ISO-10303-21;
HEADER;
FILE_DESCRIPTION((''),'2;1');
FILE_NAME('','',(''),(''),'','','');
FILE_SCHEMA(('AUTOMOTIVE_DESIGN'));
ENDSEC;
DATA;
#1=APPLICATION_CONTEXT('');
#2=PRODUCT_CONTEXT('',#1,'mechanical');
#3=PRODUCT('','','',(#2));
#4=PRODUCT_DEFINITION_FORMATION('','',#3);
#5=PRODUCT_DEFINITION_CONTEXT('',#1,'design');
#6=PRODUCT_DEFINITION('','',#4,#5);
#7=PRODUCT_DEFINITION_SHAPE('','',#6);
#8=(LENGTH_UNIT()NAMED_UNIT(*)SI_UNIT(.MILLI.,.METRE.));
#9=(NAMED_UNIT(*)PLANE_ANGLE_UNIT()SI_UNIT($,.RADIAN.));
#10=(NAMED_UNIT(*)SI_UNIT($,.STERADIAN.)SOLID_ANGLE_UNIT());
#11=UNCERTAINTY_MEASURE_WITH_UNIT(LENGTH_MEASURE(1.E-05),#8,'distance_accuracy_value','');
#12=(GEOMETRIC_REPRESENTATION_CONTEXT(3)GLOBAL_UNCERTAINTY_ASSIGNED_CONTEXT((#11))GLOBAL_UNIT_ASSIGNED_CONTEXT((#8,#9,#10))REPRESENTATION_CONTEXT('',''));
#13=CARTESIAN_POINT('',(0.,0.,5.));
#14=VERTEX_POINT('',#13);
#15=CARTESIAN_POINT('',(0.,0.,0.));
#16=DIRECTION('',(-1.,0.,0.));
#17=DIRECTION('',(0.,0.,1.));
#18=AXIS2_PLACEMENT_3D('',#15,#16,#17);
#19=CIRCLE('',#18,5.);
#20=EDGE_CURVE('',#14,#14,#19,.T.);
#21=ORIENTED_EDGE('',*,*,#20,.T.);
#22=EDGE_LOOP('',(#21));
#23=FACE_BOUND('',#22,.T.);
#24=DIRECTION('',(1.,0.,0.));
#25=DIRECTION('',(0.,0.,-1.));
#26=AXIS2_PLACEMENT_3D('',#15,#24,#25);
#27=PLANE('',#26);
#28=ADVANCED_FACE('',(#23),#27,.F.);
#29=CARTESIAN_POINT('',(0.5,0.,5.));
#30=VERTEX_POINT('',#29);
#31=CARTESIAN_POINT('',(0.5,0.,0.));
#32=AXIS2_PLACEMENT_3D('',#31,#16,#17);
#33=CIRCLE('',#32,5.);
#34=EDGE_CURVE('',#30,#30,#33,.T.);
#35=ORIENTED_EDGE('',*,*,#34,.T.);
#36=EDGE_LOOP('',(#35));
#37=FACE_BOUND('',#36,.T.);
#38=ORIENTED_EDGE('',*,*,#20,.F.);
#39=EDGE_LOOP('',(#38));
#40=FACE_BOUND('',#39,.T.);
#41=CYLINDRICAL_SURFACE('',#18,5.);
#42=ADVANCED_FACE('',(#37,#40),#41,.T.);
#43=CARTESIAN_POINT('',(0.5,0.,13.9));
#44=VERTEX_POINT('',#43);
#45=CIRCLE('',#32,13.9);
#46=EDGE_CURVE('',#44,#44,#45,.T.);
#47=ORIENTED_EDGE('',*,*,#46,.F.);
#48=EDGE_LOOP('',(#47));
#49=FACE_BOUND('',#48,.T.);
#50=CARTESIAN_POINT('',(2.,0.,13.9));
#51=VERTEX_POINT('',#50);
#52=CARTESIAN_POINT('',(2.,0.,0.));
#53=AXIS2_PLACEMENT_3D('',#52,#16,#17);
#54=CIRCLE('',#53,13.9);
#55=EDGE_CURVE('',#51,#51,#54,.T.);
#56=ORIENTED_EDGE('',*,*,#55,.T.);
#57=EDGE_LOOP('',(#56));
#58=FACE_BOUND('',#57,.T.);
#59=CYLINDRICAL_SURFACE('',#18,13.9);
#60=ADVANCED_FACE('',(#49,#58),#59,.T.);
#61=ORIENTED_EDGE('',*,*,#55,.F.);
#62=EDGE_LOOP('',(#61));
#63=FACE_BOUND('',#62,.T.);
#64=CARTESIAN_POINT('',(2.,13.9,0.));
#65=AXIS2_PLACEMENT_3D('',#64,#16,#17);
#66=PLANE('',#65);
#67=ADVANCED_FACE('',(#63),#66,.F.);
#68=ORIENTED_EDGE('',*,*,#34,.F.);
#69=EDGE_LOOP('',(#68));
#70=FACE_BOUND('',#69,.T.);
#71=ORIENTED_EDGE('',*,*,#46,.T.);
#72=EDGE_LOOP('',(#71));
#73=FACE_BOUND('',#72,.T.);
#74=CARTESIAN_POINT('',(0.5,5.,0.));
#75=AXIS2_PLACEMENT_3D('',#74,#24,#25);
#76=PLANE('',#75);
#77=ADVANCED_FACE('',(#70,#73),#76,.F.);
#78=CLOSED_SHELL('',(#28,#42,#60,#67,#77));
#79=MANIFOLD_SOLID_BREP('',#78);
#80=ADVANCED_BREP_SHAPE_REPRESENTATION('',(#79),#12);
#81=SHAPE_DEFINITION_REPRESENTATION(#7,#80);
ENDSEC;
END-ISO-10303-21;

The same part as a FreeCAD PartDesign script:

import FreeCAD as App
import Part
import Sketcher

V = App.Vector
Q = App.Units.Quantity

doc = App.newDocument("Part")
body = doc.addObject("PartDesign::Body", "Body")

# Sketch on XY plane
sketch1 = doc.addObject("Sketcher::SketchObject", "Sketch")
body.addObject(sketch1)
sketch1.AttachmentSupport = (doc.XY_Plane, [""])
sketch1.MapMode = "FlatFace"
sketch1.addGeometry([
    Part.LineSegment(V(0, 5, 0), V(0, 0, 0)),  # 0
    Part.LineSegment(V(0, 0, 0), V(2, 0, 0)),  # 1
    Part.LineSegment(V(2, 0, 0), V(2, 13.9, 0)),  # 2
    Part.LineSegment(V(2, 13.9, 0), V(0.5, 13.9, 0)),  # 3
    Part.LineSegment(V(0.5, 13.9, 0), V(0.5, 5, 0)),  # 4
    Part.LineSegment(V(0.5, 5, 0), V(0, 5, 0)),  # 5
], False)
sketch1.addConstraint([
    Sketcher.Constraint("Coincident", 0, 2, 1, 1),
    Sketcher.Constraint("Coincident", 1, 2, 2, 1),
    Sketcher.Constraint("Coincident", 2, 2, 3, 1),
    Sketcher.Constraint("Coincident", 3, 2, 4, 1),
    Sketcher.Constraint("Coincident", 4, 2, 5, 1),
    Sketcher.Constraint("Coincident", 5, 2, 0, 1),
    Sketcher.Constraint("Vertical", 0),
    Sketcher.Constraint("Horizontal", 1),
    Sketcher.Constraint("Vertical", 2),
    Sketcher.Constraint("Horizontal", 3),
    Sketcher.Constraint("Vertical", 4),
    Sketcher.Constraint("Horizontal", 5),
    Sketcher.Constraint("Coincident", 0, 2, -1, 1),
    Sketcher.Constraint("DistanceX", 1, 1, 1, 2, Q("2 mm")),
    Sketcher.Constraint("DistanceY", 0, 2, 0, 1, Q("5 mm")),
    Sketcher.Constraint("DistanceX", 3, 2, 3, 1, Q("1.5 mm")),
    Sketcher.Constraint("DistanceY", 2, 1, 2, 2, Q("13.9 mm")),
])
revolution = doc.addObject("PartDesign::Revolution", "Revolution")
body.addObject(revolution)
revolution.Profile = sketch1
revolution.ReferenceAxis = (sketch1, ["H_Axis"])
revolution.Angle = 360

doc.recompute()
